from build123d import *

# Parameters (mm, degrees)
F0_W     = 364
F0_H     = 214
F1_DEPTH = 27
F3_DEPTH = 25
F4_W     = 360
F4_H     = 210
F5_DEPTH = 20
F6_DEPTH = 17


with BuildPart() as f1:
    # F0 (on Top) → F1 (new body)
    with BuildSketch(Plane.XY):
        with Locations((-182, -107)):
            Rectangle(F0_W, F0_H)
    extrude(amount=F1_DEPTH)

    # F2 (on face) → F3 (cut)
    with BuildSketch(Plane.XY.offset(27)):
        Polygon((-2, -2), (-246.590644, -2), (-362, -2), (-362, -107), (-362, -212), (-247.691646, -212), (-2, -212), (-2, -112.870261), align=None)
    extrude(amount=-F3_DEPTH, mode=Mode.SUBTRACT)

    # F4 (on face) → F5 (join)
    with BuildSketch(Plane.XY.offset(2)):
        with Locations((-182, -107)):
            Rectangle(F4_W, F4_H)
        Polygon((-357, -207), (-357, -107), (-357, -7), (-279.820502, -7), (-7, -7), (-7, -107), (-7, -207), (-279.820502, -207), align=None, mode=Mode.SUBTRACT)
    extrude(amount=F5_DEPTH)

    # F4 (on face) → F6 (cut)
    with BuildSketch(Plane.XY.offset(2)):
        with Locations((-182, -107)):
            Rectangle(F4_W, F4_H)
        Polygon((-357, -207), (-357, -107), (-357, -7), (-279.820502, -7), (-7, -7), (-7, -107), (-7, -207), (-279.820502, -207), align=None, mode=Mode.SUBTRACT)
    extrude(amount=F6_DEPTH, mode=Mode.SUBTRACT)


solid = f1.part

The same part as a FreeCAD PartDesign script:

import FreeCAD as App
import Part
import Sketcher

V = App.Vector
Q = App.Units.Quantity

doc = App.newDocument("Part")
body = doc.addObject("PartDesign::Body", "Body")

# Sketch on XY plane
sketch1 = body.newObject("Sketcher::SketchObject", "Sketch")
sketch1.AttachmentSupport = (doc.getObject("XY_Plane"), [""])
sketch1.MapMode = "FlatFace"
sketch1.addGeometry(Part.LineSegment(V(-364, 0, 0), V(-364, -214, 0)), False)
sketch1.addGeometry(Part.LineSegment(V(-364, -214, 0), V(0, -214, 0)), False)
sketch1.addGeometry(Part.LineSegment(V(0, -214, 0), V(0, 0, 0)), False)
sketch1.addGeometry(Part.LineSegment(V(0, 0, 0), V(-364, 0, 0)), False)
sketch1.addConstraint(Sketcher.Constraint("Coincident", 0, 2, 1, 1))
sketch1.addConstraint(Sketcher.Constraint("Coincident", 1, 2, 2, 1))
sketch1.addConstraint(Sketcher.Constraint("Coincident", 2, 2, 3, 1))
sketch1.addConstraint(Sketcher.Constraint("Coincident", 3, 2, 0, 1))
sketch1.addConstraint(Sketcher.Constraint("Vertical", 0))
sketch1.addConstraint(Sketcher.Constraint("Horizontal", 1))
sketch1.addConstraint(Sketcher.Constraint("Vertical", 2))
sketch1.addConstraint(Sketcher.Constraint("Horizontal", 3))
sketch1.addConstraint(Sketcher.Constraint("Coincident", 2, 2, -1, 1))
sketch1.addConstraint(Sketcher.Constraint("DistanceX", 1, 1, 1, 2, Q("364 mm")))
sketch1.addConstraint(Sketcher.Constraint("DistanceY", 0, 2, 0, 1, Q("214 mm")))
pad1 = body.newObject("PartDesign::Pad", "Pad")
pad1.Profile = sketch1
pad1.Length = 27

# Sketch on XY plane
sketch2 = body.newObject("Sketcher::SketchObject", "Sketch001")
sketch2.AttachmentSupport = (doc.getObject("XY_Plane"), [""])
sketch2.MapMode = "FlatFace"
sketch2.AttachmentOffset = App.Placement(V(0, 0, 27), App.Rotation())
sketch2.addGeometry(Part.LineSegment(V(-2, -2, 0), V(-362, -2, 0)), False)
sketch2.addGeometry(Part.LineSegment(V(-362, -2, 0), V(-362, -212, 0)), False)
sketch2.addGeometry(Part.LineSegment(V(-362, -212, 0), V(-2, -212, 0)), False)
sketch2.addGeometry(Part.LineSegment(V(-2, -212, 0), V(-2, -2, 0)), False)
sketch2.addConstraint(Sketcher.Constraint("Coincident", 0, 2, 1, 1))
sketch2.addConstraint(Sketcher.Constraint("Coincident", 1, 2, 2, 1))
sketch2.addConstraint(Sketcher.Constraint("Coincident", 2, 2, 3, 1))
sketch2.addConstraint(Sketcher.Constraint("Coincident", 3, 2, 0, 1))
sketch2.addConstraint(Sketcher.Constraint("Horizontal", 0))
sketch2.addConstraint(Sketcher.Constraint("Vertical", 1))
sketch2.addConstraint(Sketcher.Constraint("Horizontal", 2))
sketch2.addConstraint(Sketcher.Constraint("Vertical", 3))
sketch2.addConstraint(Sketcher.Constraint("DistanceX", 0, 2, 0, 1, Q("360 mm")))
sketch2.addConstraint(Sketcher.Constraint("DistanceY", 1, 2, 1, 1, Q("210 mm")))
sketch2.addConstraint(Sketcher.Constraint("DistanceX", 0, 2, -1, 1, Q("362 mm")))
sketch2.addConstraint(Sketcher.Constraint("DistanceY", 0, 2, -1, 1, Q("2 mm")))
pocket1 = body.newObject("PartDesign::Pocket", "Pocket")
pocket1.Profile = sketch2
pocket1.Length = 25

# Sketch on XY plane
sketch3 = body.newObject("Sketcher::SketchObject", "Sketch002")
sketch3.AttachmentSupport = (doc.getObject("XY_Plane"), [""])
sketch3.MapMode = "FlatFace"
sketch3.AttachmentOffset = App.Placement(V(0, 0, 2), App.Rotation())
sketch3.addGeometry(Part.LineSegment(V(-362, -2, 0), V(-362, -212, 0)), False)
sketch3.addGeometry(Part.LineSegment(V(-362, -212, 0), V(-2, -212, 0)), False)
sketch3.addGeometry(Part.LineSegment(V(-2, -212, 0), V(-2, -2, 0)), False)
sketch3.addGeometry(Part.LineSegment(V(-2, -2, 0), V(-362, -2, 0)), False)
sketch3.addGeometry(Part.LineSegment(V(-7, -207, 0), V(-357, -207, 0)), False)
sketch3.addGeometry(Part.LineSegment(V(-357, -207, 0), V(-357, -7, 0)), False)
sketch3.addGeometry(Part.LineSegment(V(-357, -7, 0), V(-7, -7, 0)), False)
sketch3.addGeometry(Part.LineSegment(V(-7, -7, 0), V(-7, -207, 0)), False)
sketch3.addConstraint(Sketcher.Constraint("Coincident", 0, 2, 1, 1))
sketch3.addConstraint(Sketcher.Constraint("Coincident", 1, 2, 2, 1))
sketch3.addConstraint(Sketcher.Constraint("Coincident", 2, 2, 3, 1))
sketch3.addConstraint(Sketcher.Constraint("Coincident", 3, 2, 0, 1))
sketch3.addConstraint(Sketcher.Constraint("Coincident", 4, 2, 5, 1))
sketch3.addConstraint(Sketcher.Constraint("Coincident", 5, 2, 6, 1))
sketch3.addConstraint(Sketcher.Constraint("Coincident", 6, 2, 7, 1))
sketch3.addConstraint(Sketcher.Constraint("Coincident", 7, 2, 4, 1))
sketch3.addConstraint(Sketcher.Constraint("Vertical", 0))
sketch3.addConstraint(Sketcher.Constraint("Horizontal", 1))
sketch3.addConstraint(Sketcher.Constraint("Vertical", 2))
sketch3.addConstraint(Sketcher.Constraint("Horizontal", 3))
sketch3.addConstraint(Sketcher.Constraint("Horizontal", 4))
sketch3.addConstraint(Sketcher.Constraint("Vertical", 5))
sketch3.addConstraint(Sketcher.Constraint("Horizontal", 6))
sketch3.addConstraint(Sketcher.Constraint("Vertical", 7))
sketch3.addConstraint(Sketcher.Constraint("DistanceX", 1, 1, 1, 2, Q("360 mm")))
sketch3.addConstraint(Sketcher.Constraint("DistanceX", 4, 2, 4, 1, Q("350 mm")))
sketch3.addConstraint(Sketcher.Constraint("DistanceY", 0, 2, 0, 1, Q("210 mm")))
sketch3.addConstraint(Sketcher.Constraint("DistanceY", 5, 1, 5, 2, Q("200 mm")))
sketch3.addConstraint(Sketcher.Constraint("DistanceX", 0, 2, -1, 1, Q("362 mm")))
sketch3.addConstraint(Sketcher.Constraint("DistanceY", 0, 2, -1, 1, Q("212 mm")))
sketch3.addConstraint(Sketcher.Constraint("DistanceX", 4, 2, -1, 1, Q("357 mm")))
sketch3.addConstraint(Sketcher.Constraint("DistanceY", 4, 2, -1, 1, Q("207 mm")))
pad2 = body.newObject("PartDesign::Pad", "Pad001")
pad2.Profile = sketch3
pad2.Length = 20

# Sketch on XY plane
sketch4 = body.newObject("Sketcher::SketchObject", "Sketch003")
sketch4.AttachmentSupport = (doc.getObject("XY_Plane"), [""])
sketch4.MapMode = "FlatFace"
sketch4.AttachmentOffset = App.Placement(V(0, 0, 2), App.Rotation())
sketch4.addGeometry(Part.LineSegment(V(-362, -2, 0), V(-362, -212, 0)), False)
sketch4.addGeometry(Part.LineSegment(V(-362, -212, 0), V(-2, -212, 0)), False)
sketch4.addGeometry(Part.LineSegment(V(-2, -212, 0), V(-2, -2, 0)), False)
sketch4.addGeometry(Part.LineSegment(V(-2, -2, 0), V(-362, -2, 0)), False)
sketch4.addGeometry(Part.LineSegment(V(-7, -207, 0), V(-357, -207, 0)), False)
sketch4.addGeometry(Part.LineSegment(V(-357, -207, 0), V(-357, -7, 0)), False)
sketch4.addGeometry(Part.LineSegment(V(-357, -7, 0), V(-7, -7, 0)), False)
sketch4.addGeometry(Part.LineSegment(V(-7, -7, 0), V(-7, -207, 0)), False)
sketch4.addConstraint(Sketcher.Constraint("Coincident", 0, 2, 1, 1))
sketch4.addConstraint(Sketcher.Constraint("Coincident", 1, 2, 2, 1))
sketch4.addConstraint(Sketcher.Constraint("Coincident", 2, 2, 3, 1))
sketch4.addConstraint(Sketcher.Constraint("Coincident", 3, 2, 0, 1))
sketch4.addConstraint(Sketcher.Constraint("Coincident", 4, 2, 5, 1))
sketch4.addConstraint(Sketcher.Constraint("Coincident", 5, 2, 6, 1))
sketch4.addConstraint(Sketcher.Constraint("Coincident", 6, 2, 7, 1))
sketch4.addConstraint(Sketcher.Constraint("Coincident", 7, 2, 4, 1))
sketch4.addConstraint(Sketcher.Constraint("Vertical", 0))
sketch4.addConstraint(Sketcher.Constraint("Horizontal", 1))
sketch4.addConstraint(Sketcher.Constraint("Vertical", 2))
sketch4.addConstraint(Sketcher.Constraint("Horizontal", 3))
sketch4.addConstraint(Sketcher.Constraint("Horizontal", 4))
sketch4.addConstraint(Sketcher.Constraint("Vertical", 5))
sketch4.addConstraint(Sketcher.Constraint("Horizontal", 6))
sketch4.addConstraint(Sketcher.Constraint("Vertical", 7))
sketch4.addConstraint(Sketcher.Constraint("DistanceX", 1, 1, 1, 2, Q("360 mm")))
sketch4.addConstraint(Sketcher.Constraint("DistanceX", 4, 2, 4, 1, Q("350 mm")))
sketch4.addConstraint(Sketcher.Constraint("DistanceY", 0, 2, 0, 1, Q("210 mm")))
sketch4.addConstraint(Sketcher.Constraint("DistanceY", 5, 1, 5, 2, Q("200 mm")))
sketch4.addConstraint(Sketcher.Constraint("DistanceX", 0, 2, -1, 1, Q("362 mm")))
sketch4.addConstraint(Sketcher.Constraint("DistanceY", 0, 2, -1, 1, Q("212 mm")))
sketch4.addConstraint(Sketcher.Constraint("DistanceX", 4, 2, -1, 1, Q("357 mm")))
sketch4.addConstraint(Sketcher.Constraint("DistanceY", 4, 2, -1, 1, Q("207 mm")))
pocket2 = body.newObject("PartDesign::Pocket", "Pocket001")
pocket2.Profile = sketch4
pocket2.Length = 17
pocket2.Reversed = True

doc.recompute()
